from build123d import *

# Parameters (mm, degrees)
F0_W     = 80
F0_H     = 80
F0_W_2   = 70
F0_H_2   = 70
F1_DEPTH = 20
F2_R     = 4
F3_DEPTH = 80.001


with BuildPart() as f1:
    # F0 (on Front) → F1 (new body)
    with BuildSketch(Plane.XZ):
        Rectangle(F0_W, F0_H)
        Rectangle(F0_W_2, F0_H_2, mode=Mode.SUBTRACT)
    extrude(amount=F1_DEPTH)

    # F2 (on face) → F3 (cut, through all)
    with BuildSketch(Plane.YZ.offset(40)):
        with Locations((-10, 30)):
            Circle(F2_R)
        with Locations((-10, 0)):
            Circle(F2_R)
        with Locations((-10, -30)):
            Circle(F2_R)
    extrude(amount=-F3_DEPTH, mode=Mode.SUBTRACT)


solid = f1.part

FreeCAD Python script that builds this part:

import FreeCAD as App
import Part
import Sketcher

doc = App.newDocument("Part")
body = doc.addObject("PartDesign::Body", "Body")

sketch1 = body.newObject("Sketcher::SketchObject", "Sketch")
sketch1.AttachmentSupport = (doc.getObject("XZ_Plane"), [""])
sketch1.MapMode = "FlatFace"
sketch1.addGeometry([
    Part.LineSegment(App.Vector(-40, 40, 0), App.Vector(-40, -40, 0)),
    Part.LineSegment(App.Vector(-40, -40, 0), App.Vector(40, -40, 0)),
    Part.LineSegment(App.Vector(40, -40, 0), App.Vector(40, 40, 0)),
    Part.LineSegment(App.Vector(40, 40, 0), App.Vector(-40, 40, 0)),
    Part.LineSegment(App.Vector(35, -35, 0), App.Vector(-35, -35, 0)),
    Part.LineSegment(App.Vector(-35, -35, 0), App.Vector(-35, 35, 0)),
    Part.LineSegment(App.Vector(-35, 35, 0), App.Vector(35, 35, 0)),
    Part.LineSegment(App.Vector(35, 35, 0), App.Vector(35, -35, 0)),
], False)
sketch1.addConstraint([
    Sketcher.Constraint("Coincident", 0, 2, 1, 1),
    Sketcher.Constraint("Coincident", 1, 2, 2, 1),
    Sketcher.Constraint("Coincident", 2, 2, 3, 1),
    Sketcher.Constraint("Coincident", 3, 2, 0, 1),
    Sketcher.Constraint("Coincident", 4, 2, 5, 1),
    Sketcher.Constraint("Coincident", 5, 2, 6, 1),
    Sketcher.Constraint("Coincident", 6, 2, 7, 1),
    Sketcher.Constraint("Coincident", 7, 2, 4, 1),
    Sketcher.Constraint("Vertical", 0),
    Sketcher.Constraint("Horizontal", 1),
    Sketcher.Constraint("Vertical", 2),
    Sketcher.Constraint("Horizontal", 3),
    Sketcher.Constraint("Horizontal", 4),
    Sketcher.Constraint("Vertical", 5),
    Sketcher.Constraint("Horizontal", 6),
    Sketcher.Constraint("Vertical", 7),
    Sketcher.Constraint("Symmetric", 0, 2, 2, 2, -1, 1),
    Sketcher.Constraint("Symmetric", 4, 2, 6, 2, -1, 1),
    Sketcher.Constraint("Equal", 3, 0),
    Sketcher.Constraint("Equal", 6, 5),
    Sketcher.Constraint("DistanceX", 1, 1, 1, 2, 80.0),
    Sketcher.Constraint("DistanceX", 4, 2, 4, 1, 70.0),
])
pad1 = body.newObject("PartDesign::Pad", "Pad")
pad1.Profile = sketch1
pad1.Length = 20

sketch2 = body.newObject("Sketcher::SketchObject", "Sketch001")
sketch2.AttachmentSupport = (doc.getObject("YZ_Plane"), [""])
sketch2.MapMode = "FlatFace"
sketch2.AttachmentOffset = App.Placement(App.Vector(0, 0, 40), App.Rotation())
sketch2.addGeometry([
    Part.Circle(App.Vector(-10, 30, 0), App.Vector(0, 0, 1), 4),
    Part.Circle(App.Vector(-10, 0, 0), App.Vector(0, 0, 1), 4),
    Part.Circle(App.Vector(-10, -30, 0), App.Vector(0, 0, 1), 4),
], False)
sketch2.addConstraint([
    Sketcher.Constraint("Equal", 0, 1),
    Sketcher.Constraint("Equal", 1, 2),
    Sketcher.Constraint("Symmetric", 0, 3, 2, 3, -1),
    Sketcher.Constraint("PointOnObject", 1, 3, -1),
    Sketcher.Constraint("Vertical", 0, 3, 1, 3),
    Sketcher.Constraint("Diameter", 0, 8.0),
    Sketcher.Constraint("DistanceX", 0, 3, -1, 1, 10.0),
    Sketcher.Constraint("DistanceY", -1, 1, 0, 3, 30.0),
])
pocket1 = body.newObject("PartDesign::Pocket", "Pocket")
pocket1.Profile = sketch2
pocket1.Type = "ThroughAll"

doc.recompute()
